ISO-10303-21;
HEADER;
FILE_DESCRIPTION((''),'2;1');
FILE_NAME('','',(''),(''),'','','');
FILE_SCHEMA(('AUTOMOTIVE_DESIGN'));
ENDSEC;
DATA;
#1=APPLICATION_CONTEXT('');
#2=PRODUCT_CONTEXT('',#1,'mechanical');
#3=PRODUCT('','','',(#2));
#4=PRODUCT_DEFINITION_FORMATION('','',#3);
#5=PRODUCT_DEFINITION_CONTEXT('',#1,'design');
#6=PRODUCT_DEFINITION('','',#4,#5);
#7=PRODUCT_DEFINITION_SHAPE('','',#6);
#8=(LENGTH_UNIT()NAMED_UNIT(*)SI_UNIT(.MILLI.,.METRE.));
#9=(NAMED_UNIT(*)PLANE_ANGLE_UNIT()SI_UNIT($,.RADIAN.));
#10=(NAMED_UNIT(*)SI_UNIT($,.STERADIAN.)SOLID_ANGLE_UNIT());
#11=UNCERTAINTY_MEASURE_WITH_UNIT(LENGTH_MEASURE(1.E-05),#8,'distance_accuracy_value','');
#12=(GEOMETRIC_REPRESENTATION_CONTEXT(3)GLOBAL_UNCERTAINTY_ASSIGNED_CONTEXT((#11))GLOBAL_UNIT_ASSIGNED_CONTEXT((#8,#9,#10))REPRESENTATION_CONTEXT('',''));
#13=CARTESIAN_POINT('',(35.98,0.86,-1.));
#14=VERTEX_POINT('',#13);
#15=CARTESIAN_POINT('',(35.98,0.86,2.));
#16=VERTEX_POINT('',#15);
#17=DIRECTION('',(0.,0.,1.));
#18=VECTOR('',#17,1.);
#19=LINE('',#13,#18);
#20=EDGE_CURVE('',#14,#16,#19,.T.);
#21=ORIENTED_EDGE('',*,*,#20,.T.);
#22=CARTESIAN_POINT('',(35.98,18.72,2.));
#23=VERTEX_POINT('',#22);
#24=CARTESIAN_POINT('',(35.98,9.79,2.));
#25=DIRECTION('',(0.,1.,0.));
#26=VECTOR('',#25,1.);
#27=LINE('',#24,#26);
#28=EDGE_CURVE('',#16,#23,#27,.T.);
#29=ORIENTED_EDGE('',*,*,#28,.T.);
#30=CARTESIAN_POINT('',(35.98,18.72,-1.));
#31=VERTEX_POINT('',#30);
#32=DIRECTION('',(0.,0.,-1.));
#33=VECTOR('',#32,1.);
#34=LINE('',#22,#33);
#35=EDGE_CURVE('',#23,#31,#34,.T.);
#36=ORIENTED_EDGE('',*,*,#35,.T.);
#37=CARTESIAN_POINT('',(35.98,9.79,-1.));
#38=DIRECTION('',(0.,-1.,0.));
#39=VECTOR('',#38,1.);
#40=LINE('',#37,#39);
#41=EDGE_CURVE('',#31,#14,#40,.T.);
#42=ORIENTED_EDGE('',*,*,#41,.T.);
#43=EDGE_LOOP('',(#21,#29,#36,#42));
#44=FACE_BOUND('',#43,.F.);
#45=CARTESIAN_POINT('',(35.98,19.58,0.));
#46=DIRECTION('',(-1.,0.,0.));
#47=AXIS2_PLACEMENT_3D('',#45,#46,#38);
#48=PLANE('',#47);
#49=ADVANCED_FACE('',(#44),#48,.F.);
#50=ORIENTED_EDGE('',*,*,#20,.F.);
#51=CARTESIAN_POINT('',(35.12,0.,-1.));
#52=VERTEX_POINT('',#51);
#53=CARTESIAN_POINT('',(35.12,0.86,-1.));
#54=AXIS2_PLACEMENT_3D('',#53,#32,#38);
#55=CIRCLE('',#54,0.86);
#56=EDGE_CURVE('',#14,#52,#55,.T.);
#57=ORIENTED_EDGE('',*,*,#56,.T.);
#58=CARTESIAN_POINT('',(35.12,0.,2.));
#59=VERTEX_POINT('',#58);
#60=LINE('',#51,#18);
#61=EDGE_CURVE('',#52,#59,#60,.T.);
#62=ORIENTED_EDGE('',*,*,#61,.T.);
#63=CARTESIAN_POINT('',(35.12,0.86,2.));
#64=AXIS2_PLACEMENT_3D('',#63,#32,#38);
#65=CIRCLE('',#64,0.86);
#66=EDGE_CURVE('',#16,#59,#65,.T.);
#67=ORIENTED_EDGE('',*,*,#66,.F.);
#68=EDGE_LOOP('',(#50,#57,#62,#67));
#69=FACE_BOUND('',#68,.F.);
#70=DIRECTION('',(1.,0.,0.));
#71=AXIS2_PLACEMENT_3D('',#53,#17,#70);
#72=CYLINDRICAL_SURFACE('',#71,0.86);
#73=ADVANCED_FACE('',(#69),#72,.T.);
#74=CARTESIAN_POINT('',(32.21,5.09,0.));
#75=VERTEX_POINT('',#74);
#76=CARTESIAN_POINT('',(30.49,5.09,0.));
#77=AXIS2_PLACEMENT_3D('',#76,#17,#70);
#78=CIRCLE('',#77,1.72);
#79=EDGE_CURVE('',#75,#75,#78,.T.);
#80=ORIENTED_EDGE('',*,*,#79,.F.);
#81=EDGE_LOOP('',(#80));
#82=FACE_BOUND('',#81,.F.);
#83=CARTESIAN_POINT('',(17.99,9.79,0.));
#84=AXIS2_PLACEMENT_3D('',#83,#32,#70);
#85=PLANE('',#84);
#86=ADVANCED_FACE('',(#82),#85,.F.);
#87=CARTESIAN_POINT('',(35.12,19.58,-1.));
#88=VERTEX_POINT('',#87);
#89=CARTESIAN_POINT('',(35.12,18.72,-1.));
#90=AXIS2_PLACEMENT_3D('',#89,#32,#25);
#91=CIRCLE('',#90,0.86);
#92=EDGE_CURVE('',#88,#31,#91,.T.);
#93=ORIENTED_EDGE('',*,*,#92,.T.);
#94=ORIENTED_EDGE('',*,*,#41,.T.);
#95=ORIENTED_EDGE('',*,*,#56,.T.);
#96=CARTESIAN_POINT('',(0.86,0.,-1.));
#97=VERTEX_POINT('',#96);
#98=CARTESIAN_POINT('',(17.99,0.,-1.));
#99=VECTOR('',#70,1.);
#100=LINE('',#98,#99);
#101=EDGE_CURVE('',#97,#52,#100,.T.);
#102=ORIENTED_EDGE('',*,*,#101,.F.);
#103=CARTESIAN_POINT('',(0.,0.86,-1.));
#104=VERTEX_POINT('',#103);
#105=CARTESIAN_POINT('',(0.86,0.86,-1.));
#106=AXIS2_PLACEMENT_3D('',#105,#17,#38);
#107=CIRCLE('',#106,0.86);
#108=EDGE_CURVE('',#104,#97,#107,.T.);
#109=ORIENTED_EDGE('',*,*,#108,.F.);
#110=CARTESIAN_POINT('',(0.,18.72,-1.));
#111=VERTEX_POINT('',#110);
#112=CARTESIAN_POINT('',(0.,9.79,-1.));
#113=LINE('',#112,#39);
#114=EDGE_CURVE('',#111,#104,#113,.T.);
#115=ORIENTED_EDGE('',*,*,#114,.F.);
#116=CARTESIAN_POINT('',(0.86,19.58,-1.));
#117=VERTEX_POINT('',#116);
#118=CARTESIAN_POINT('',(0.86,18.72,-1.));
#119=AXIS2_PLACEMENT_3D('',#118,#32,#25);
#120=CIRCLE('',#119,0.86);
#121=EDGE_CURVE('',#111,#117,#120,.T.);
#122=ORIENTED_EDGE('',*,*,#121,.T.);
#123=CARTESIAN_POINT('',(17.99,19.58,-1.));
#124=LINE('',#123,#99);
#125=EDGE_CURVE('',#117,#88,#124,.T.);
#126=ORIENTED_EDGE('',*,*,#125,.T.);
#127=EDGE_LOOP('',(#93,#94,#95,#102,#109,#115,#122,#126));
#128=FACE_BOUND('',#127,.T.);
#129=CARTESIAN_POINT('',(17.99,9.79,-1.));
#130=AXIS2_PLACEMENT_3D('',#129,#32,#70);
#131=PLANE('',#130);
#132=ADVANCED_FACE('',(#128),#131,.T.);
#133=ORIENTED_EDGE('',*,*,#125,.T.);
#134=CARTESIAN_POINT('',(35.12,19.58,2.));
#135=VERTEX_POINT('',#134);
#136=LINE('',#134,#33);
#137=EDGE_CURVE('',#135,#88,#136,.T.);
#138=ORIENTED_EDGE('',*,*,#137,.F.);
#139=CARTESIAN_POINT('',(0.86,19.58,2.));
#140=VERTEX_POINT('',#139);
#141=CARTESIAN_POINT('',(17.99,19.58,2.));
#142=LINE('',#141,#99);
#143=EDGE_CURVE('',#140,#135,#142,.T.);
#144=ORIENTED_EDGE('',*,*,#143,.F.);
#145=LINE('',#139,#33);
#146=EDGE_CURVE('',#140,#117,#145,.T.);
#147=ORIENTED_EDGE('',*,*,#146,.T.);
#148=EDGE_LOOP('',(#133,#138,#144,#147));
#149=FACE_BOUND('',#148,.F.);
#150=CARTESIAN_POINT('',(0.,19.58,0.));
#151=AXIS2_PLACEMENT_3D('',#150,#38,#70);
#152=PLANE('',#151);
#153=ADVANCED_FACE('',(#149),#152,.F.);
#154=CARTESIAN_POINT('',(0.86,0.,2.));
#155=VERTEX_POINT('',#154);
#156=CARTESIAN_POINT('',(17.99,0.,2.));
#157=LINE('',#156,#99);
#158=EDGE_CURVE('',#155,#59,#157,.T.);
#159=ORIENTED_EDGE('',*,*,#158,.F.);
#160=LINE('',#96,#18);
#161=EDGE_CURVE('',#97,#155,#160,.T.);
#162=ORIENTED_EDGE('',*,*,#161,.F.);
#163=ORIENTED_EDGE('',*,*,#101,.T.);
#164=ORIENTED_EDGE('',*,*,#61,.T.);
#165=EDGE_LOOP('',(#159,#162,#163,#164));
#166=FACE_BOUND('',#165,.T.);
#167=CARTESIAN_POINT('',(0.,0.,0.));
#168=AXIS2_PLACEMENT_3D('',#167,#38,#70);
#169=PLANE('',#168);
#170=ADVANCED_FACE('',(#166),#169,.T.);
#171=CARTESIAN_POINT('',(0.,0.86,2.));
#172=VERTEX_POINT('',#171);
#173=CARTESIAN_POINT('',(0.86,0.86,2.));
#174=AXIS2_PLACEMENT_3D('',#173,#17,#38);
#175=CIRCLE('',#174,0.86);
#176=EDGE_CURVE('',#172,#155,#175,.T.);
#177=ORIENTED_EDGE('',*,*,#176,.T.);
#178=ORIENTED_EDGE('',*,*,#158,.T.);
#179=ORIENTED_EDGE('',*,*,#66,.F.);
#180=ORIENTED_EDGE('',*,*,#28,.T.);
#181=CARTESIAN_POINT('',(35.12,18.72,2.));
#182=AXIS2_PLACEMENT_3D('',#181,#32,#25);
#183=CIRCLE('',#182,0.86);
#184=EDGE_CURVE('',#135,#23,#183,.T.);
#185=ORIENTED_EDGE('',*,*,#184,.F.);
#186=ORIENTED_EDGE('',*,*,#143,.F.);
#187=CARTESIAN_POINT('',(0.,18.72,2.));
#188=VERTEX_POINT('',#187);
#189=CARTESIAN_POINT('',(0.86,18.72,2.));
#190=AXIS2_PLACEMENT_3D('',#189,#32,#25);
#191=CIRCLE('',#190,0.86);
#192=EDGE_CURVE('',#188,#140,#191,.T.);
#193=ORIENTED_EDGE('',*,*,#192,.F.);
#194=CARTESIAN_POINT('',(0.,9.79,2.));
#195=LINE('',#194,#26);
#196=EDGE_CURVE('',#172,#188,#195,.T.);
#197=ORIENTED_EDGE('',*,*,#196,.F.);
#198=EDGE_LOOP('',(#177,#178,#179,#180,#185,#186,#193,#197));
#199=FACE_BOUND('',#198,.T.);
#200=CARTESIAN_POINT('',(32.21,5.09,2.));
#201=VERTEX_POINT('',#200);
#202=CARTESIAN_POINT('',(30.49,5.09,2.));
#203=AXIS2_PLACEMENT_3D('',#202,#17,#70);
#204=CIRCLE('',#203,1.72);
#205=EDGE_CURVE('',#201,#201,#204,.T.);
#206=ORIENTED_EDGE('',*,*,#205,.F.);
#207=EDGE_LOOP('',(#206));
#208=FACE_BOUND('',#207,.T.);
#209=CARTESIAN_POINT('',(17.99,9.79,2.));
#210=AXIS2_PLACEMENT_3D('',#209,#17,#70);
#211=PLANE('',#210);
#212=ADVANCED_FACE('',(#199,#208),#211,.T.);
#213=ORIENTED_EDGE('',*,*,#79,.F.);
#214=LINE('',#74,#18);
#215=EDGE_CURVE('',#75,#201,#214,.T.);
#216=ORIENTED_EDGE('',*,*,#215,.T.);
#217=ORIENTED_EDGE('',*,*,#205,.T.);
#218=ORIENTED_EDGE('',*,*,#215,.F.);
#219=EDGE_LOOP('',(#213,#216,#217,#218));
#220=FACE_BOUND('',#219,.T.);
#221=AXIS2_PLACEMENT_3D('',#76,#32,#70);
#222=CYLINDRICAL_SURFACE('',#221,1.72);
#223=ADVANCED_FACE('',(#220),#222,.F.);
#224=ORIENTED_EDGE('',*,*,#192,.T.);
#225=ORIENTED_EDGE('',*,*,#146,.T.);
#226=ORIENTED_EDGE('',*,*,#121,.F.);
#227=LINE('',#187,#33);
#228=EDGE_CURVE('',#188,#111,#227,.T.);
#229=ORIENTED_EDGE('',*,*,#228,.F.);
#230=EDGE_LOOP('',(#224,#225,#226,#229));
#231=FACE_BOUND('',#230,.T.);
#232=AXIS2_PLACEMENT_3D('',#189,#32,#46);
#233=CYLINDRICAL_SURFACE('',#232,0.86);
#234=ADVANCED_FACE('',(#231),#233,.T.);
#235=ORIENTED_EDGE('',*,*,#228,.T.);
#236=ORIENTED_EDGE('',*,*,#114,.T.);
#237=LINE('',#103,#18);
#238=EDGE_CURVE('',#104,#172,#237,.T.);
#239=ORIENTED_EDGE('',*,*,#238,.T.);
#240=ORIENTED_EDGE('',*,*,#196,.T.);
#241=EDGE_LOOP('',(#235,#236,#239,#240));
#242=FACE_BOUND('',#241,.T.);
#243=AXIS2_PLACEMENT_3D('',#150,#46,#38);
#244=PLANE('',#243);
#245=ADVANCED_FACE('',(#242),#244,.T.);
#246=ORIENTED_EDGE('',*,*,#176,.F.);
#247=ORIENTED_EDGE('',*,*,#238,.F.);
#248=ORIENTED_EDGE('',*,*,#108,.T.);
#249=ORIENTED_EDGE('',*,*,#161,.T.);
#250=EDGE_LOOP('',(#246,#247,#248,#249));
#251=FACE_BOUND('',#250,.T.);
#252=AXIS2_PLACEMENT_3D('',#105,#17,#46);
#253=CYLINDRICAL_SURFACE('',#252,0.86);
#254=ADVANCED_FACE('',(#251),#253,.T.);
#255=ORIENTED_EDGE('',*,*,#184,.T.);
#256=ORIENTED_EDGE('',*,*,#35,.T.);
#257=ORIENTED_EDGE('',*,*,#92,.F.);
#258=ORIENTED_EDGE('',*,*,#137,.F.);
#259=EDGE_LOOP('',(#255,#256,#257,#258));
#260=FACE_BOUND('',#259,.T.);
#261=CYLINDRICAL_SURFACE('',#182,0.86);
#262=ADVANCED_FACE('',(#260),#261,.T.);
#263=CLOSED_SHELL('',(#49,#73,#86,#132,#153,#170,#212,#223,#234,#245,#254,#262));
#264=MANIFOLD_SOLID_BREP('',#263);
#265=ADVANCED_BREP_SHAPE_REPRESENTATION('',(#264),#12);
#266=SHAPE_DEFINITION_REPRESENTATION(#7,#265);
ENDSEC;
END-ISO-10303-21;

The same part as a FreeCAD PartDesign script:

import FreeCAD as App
import Part
import Sketcher
Q = App.Units.Quantity


def edges_at(feature, points):
    """Names of the edges that pass closest to the given points."""
    edges = feature.Shape.Edges
    near = lambda p: min(range(len(edges)), key=lambda i: edges[i].distToShape(Part.Vertex(*p))[0])
    return sorted({f"Edge{near(p) + 1}" for p in points})

doc = App.newDocument("Part")
params = doc.addObject("Spreadsheet::Sheet", "Params")
for row, (alias, value) in enumerate([
    ("sketch1_diameter", "3.44 mm"),
    ("sketch1_width", "35.98 mm"),
    ("sketch1_height", "19.58 mm"),
    ("pad1_length", "2 mm"),
    ("sketch2_width", "35.98 mm"),
    ("sketch2_height", "19.58 mm"),
    ("pad2_length", "1 mm"),
    ("fillet_radius", "0.86 mm"),
], start=1):
    params.set(f"A{row}", alias)
    params.set(f"B{row}", "=" + value)
    params.setAlias(f"B{row}", alias)

body = doc.addObject("PartDesign::Body", "Body")

sketch1 = body.newObject("Sketcher::SketchObject", "Sketch")
sketch1.AttachmentSupport = (doc.getObject("XY_Plane"), [""])
sketch1.MapMode = "FlatFace"
sketch1.addGeometry([
    Part.LineSegment(App.Vector(0, 19.6, 0), App.Vector(0, 0, 0)),
    Part.LineSegment(App.Vector(0, 0, 0), App.Vector(36, 0, 0)),
    Part.LineSegment(App.Vector(36, 0, 0), App.Vector(36, 19.6, 0)),
    Part.LineSegment(App.Vector(36, 19.6, 0), App.Vector(0, 19.6, 0)),
    Part.Circle(App.Vector(30.5, 5.1, 0), App.Vector(0, 0, 1), 1.7),
], False)
sketch1.addConstraint([
    Sketcher.Constraint("Coincident", 0, 2, 1, 1),
    Sketcher.Constraint("Coincident", 1, 2, 2, 1),
    Sketcher.Constraint("Coincident", 2, 2, 3, 1),
    Sketcher.Constraint("Coincident", 3, 2, 0, 1),
    Sketcher.Constraint("Vertical", 0),
    Sketcher.Constraint("Horizontal", 1),
    Sketcher.Constraint("Vertical", 2),
    Sketcher.Constraint("Horizontal", 3),
    Sketcher.Constraint("Coincident", 0, 2, -1, 1),
    Sketcher.Constraint("Diameter", 4, Q("3.44 mm")),
    Sketcher.Constraint("DistanceX", 1, 1, 1, 2, Q("35.98 mm")),
    Sketcher.Constraint("DistanceY", 0, 2, 0, 1, Q("19.58 mm")),
    Sketcher.Constraint("DistanceX", -1, 1, 4, 3, Q("30.49 mm")),
    Sketcher.Constraint("DistanceY", -1, 1, 4, 3, Q("5.09 mm")),
])
sketch1.setExpression("Constraints[9]", "Params.sketch1_diameter")
sketch1.setExpression("Constraints[10]", "Params.sketch1_width")
sketch1.setExpression("Constraints[11]", "Params.sketch1_height")
pad1 = body.newObject("PartDesign::Pad", "Pad")
pad1.Profile = sketch1
pad1.setExpression("Length", "Params.pad1_length")

sketch2 = body.newObject("Sketcher::SketchObject", "Sketch001")
sketch2.AttachmentSupport = (doc.getObject("XY_Plane"), [""])
sketch2.MapMode = "FlatFace"
sketch2.addGeometry([
    Part.LineSegment(App.Vector(0, 0, 0), App.Vector(0, 20, 0)),
    Part.LineSegment(App.Vector(0, 20, 0), App.Vector(36, 20, 0)),
    Part.LineSegment(App.Vector(36, 20, 0), App.Vector(36, 0, 0)),
    Part.LineSegment(App.Vector(36, 0, 0), App.Vector(0, 0, 0)),
], False)
sketch2.addConstraint([
    Sketcher.Constraint("Coincident", 0, 2, 1, 1),
    Sketcher.Constraint("Coincident", 1, 2, 2, 1),
    Sketcher.Constraint("Coincident", 2, 2, 3, 1),
    Sketcher.Constraint("Coincident", 3, 2, 0, 1),
    Sketcher.Constraint("Vertical", 0),
    Sketcher.Constraint("Horizontal", 1),
    Sketcher.Constraint("Vertical", 2),
    Sketcher.Constraint("Horizontal", 3),
    Sketcher.Constraint("Coincident", 3, 2, -1, 1),
    Sketcher.Constraint("DistanceX", 1, 1, 1, 2, Q("35.98 mm")),
    Sketcher.Constraint("DistanceY", 0, 1, 0, 2, Q("19.58 mm")),
])
sketch2.setExpression("Constraints[9]", "Params.sketch2_width")
sketch2.setExpression("Constraints[10]", "Params.sketch2_height")
pad2 = body.newObject("PartDesign::Pad", "Pad001")
pad2.Profile = sketch2
pad2.setExpression("Length", "Params.pad2_length")
pad2.Reversed = True
doc.recompute()

fillet = body.newObject("PartDesign::Fillet", "Fillet")
fillet.Base = (pad2, edges_at(pad2, [
    (0, 0, 0.5),
    (0, 19.58, 0.5),
    (35.98, 19.58, 0.5),
    (35.98, 0, 0.5),
]))
fillet.setExpression("Radius", "Params.fillet_radius")

doc.recompute()
